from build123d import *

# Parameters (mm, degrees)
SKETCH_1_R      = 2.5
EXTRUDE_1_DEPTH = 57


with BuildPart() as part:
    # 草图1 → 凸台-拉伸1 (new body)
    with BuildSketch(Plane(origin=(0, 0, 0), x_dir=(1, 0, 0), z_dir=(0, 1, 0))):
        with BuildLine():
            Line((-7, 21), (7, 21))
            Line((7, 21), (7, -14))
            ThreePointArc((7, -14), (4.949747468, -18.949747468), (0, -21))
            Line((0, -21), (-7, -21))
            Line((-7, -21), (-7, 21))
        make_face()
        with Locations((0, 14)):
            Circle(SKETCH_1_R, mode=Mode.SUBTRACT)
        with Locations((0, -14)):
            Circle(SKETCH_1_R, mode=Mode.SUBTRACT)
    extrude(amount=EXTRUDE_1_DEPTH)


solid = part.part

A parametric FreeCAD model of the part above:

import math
import FreeCAD as App
import Part
import Sketcher

doc = App.newDocument("Part")
params = doc.addObject("Spreadsheet::Sheet", "Params")
for row, (alias, value) in enumerate([
    ("sketch1_diameter", "5 mm"),
    ("sketch1_radius", "7 mm"),
    ("sketch1_height", "42 mm"),
    ("pad1_length", "57 mm"),
], start=1):
    params.set(f"A{row}", alias)
    params.set(f"B{row}", "=" + value)
    params.setAlias(f"B{row}", alias)

body = doc.addObject("PartDesign::Body", "Body")

# Sketch on XZ plane
sketch1 = doc.addObject("Sketcher::SketchObject", "Sketch")
body.addObject(sketch1)
sketch1.AttachmentSupport = (doc.XZ_Plane, [""])
sketch1.MapMode = "FlatFace"
sketch1.addGeometry([
    Part.LineSegment(App.Vector(7, -21, 0), App.Vector(-7, -21, 0)),  # 0
    Part.LineSegment(App.Vector(-7, -21, 0), App.Vector(-7, 21, 0)),  # 1
    Part.LineSegment(App.Vector(-7, 21, 0), App.Vector(0, 21, 0)),  # 2
    Part.ArcOfCircle(Part.Circle(App.Vector(0, 14, 0), App.Vector(0, 0, 1), 7), math.radians(0), math.radians(90)),  # 3
    Part.LineSegment(App.Vector(7, 14, 0), App.Vector(7, -21, 0)),  # 4
    Part.Circle(App.Vector(0, 14, 0), App.Vector(0, 0, 1), 2.5),  # 5
    Part.Circle(App.Vector(0, -14, 0), App.Vector(0, 0, 1), 2.5),  # 6
], False)
sketch1.addConstraint([
    Sketcher.Constraint("Coincident", 0, 2, 1, 1),
    Sketcher.Constraint("Coincident", 1, 2, 2, 1),
    Sketcher.Constraint("Tangent", 2, 2, 3, 2),
    Sketcher.Constraint("Tangent", 3, 1, 4, 1),
    Sketcher.Constraint("Coincident", 4, 2, 0, 1),
    Sketcher.Constraint("Horizontal", 0),
    Sketcher.Constraint("Vertical", 1),
    Sketcher.Constraint("Horizontal", 2),
    Sketcher.Constraint("Vertical", 4),
    Sketcher.Constraint("Coincident", 5, 3, 3, 3),
    Sketcher.Constraint("Equal", 5, 6),
    Sketcher.Constraint("Symmetric", 3, 3, 6, 3, -1, 1),
    Sketcher.Constraint("Symmetric", 1, 2, 4, 2, -1, 1),
    Sketcher.Constraint("PointOnObject", 3, 3, -2),
    Sketcher.Constraint("Diameter", 5, 5.0),
    Sketcher.Constraint("Radius", 3, 7.0),
    Sketcher.Constraint("DistanceY", 1, 1, 1, 2, 42.0),
])
sketch1.setExpression("Constraints[14]", "Params.sketch1_diameter")
sketch1.setExpression("Constraints[15]", "Params.sketch1_radius")
sketch1.setExpression("Constraints[16]", "Params.sketch1_height")
pad1 = doc.addObject("PartDesign::Pad", "Pad")
body.addObject(pad1)
pad1.Profile = sketch1
pad1.setExpression("Length", "Params.pad1_length")
pad1.Reversed = True

doc.recompute()
